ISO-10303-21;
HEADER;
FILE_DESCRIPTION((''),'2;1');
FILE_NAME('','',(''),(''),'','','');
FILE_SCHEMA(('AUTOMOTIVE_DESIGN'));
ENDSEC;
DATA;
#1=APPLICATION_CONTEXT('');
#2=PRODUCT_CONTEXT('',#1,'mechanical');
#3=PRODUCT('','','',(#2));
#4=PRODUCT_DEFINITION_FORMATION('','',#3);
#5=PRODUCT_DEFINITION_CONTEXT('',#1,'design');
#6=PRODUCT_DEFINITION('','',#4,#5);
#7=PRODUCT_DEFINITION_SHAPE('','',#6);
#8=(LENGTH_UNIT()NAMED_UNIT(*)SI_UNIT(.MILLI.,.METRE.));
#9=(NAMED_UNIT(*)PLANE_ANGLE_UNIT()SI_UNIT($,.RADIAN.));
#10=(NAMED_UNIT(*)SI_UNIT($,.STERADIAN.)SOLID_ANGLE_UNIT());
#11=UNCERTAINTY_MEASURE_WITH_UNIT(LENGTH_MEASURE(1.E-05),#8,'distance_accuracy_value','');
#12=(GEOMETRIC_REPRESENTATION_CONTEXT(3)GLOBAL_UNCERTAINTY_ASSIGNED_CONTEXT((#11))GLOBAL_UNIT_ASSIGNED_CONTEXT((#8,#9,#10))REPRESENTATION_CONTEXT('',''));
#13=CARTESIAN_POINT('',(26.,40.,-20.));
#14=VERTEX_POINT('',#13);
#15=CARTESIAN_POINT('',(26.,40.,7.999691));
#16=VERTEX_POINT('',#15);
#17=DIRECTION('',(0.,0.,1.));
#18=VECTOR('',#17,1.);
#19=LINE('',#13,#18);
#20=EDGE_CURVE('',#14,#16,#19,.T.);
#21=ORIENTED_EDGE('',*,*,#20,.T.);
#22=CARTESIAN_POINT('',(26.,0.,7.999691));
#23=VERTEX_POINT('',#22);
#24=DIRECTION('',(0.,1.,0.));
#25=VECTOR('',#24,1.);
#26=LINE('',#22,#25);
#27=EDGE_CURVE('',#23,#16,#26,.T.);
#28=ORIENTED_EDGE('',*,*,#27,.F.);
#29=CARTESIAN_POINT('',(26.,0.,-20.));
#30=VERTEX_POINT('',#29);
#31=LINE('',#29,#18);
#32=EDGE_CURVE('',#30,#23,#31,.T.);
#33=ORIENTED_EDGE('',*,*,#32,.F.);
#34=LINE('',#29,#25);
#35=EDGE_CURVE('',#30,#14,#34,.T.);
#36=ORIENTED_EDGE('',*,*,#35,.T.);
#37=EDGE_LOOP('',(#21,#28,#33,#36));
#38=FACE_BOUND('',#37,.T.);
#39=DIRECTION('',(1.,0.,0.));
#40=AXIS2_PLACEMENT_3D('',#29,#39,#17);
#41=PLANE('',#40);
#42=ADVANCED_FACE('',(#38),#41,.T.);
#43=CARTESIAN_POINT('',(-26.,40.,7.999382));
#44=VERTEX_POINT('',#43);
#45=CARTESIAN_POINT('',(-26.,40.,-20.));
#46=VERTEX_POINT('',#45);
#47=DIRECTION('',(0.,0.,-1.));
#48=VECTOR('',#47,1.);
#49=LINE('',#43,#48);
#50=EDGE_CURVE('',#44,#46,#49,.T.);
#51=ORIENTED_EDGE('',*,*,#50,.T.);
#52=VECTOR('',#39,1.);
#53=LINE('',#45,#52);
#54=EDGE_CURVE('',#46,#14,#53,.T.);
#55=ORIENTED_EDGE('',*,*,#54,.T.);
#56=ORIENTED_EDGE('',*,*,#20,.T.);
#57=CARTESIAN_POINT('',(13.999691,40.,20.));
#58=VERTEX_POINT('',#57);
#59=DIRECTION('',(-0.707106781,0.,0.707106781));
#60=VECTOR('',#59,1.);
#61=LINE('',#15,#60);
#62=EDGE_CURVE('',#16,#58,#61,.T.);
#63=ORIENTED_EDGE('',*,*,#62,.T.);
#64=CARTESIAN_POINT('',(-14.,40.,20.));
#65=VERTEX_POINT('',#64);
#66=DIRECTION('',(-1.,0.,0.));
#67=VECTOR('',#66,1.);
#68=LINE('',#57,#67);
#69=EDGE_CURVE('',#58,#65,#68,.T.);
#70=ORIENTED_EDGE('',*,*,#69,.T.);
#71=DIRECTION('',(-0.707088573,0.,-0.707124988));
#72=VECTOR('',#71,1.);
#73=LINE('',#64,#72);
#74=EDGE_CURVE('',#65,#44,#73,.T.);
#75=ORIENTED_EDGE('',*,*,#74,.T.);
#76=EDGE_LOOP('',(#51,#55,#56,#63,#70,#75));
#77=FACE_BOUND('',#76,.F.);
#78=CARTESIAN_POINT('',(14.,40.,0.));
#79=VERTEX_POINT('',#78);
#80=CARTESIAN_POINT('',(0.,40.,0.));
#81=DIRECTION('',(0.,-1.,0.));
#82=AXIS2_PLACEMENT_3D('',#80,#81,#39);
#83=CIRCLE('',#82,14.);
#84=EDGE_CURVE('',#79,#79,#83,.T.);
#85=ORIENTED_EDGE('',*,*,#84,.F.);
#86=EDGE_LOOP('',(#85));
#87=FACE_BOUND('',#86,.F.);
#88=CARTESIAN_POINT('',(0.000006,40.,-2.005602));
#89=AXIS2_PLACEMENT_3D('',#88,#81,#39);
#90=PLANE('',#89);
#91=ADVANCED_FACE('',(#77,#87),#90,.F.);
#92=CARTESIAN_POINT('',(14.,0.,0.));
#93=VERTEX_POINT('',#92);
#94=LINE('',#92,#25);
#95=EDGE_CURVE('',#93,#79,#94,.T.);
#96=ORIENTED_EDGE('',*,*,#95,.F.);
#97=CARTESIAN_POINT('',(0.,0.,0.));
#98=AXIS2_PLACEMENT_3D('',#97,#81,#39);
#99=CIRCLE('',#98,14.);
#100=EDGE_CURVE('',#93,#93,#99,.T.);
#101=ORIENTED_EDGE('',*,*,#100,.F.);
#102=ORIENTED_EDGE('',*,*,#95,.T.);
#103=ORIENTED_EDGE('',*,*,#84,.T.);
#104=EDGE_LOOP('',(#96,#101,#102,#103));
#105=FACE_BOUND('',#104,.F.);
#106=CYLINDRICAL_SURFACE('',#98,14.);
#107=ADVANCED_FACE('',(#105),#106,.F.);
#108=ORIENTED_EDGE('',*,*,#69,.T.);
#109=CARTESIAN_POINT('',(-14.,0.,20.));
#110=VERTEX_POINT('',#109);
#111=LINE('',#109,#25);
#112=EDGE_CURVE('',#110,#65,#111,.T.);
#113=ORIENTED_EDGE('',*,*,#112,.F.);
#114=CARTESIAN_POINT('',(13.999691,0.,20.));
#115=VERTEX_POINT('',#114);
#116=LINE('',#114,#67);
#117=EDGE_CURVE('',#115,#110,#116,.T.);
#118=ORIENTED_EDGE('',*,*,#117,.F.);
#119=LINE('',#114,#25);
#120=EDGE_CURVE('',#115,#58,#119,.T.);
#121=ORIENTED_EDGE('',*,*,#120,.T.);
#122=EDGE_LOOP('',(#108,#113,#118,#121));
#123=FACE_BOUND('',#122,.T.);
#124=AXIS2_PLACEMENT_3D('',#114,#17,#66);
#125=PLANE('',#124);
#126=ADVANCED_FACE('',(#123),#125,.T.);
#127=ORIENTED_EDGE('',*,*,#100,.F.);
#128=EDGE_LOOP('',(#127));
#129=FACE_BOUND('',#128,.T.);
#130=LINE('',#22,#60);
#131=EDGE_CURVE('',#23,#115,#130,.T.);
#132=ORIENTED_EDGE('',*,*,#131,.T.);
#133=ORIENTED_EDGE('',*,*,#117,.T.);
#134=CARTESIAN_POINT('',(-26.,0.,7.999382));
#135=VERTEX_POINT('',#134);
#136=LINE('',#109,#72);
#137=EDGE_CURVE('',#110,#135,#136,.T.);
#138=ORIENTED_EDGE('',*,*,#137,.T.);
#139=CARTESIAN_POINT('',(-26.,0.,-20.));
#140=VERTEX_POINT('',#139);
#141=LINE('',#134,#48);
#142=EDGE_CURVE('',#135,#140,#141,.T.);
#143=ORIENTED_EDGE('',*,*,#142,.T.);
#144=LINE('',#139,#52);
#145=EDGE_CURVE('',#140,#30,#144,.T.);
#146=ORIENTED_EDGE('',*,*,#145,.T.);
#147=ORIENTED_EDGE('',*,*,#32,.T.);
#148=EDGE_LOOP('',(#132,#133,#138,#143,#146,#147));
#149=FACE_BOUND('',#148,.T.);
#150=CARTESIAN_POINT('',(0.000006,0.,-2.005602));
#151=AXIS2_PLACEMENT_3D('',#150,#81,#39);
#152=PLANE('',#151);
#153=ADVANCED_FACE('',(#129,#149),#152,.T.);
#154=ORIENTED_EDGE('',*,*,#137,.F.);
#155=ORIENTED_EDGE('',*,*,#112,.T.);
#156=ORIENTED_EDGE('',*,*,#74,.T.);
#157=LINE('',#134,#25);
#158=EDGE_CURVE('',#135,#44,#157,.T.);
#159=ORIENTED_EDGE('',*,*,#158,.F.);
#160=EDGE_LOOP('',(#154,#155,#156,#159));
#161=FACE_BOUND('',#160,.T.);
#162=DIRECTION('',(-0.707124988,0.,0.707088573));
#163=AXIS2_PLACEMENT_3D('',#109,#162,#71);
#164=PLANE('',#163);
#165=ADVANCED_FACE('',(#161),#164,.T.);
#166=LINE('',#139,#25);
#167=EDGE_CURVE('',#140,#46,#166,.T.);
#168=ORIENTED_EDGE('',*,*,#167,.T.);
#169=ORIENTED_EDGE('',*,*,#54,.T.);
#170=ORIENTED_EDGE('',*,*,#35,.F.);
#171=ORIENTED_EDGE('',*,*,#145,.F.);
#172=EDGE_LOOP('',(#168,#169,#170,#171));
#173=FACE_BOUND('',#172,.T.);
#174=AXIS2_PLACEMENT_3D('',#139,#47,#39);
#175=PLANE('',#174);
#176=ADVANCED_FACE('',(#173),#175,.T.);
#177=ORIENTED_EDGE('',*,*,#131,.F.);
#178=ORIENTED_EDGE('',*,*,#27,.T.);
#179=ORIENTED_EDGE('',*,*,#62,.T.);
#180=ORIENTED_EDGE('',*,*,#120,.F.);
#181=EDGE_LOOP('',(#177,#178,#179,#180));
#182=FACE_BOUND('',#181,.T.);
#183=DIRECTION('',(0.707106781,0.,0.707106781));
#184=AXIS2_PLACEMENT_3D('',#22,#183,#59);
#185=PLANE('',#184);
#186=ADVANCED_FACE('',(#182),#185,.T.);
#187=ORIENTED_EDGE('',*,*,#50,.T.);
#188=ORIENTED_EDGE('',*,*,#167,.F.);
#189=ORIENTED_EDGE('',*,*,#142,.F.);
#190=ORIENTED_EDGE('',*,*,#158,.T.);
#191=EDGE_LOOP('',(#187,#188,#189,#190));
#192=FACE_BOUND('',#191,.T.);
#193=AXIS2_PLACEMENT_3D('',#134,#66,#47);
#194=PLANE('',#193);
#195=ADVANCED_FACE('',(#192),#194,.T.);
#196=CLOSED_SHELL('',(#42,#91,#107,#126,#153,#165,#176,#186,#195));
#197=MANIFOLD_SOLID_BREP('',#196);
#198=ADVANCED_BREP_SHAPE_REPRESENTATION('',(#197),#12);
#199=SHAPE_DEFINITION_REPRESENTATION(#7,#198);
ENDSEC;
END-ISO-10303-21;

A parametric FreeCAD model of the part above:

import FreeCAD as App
import Part
import Sketcher
from FreeCAD import Vector
Q = App.Units.Quantity


def add_polygon(sketch, points):
    """Adds a closed chain of lines whose ends are joined by coincident constraints."""
    first, n = sketch.GeometryCount, len(points)
    for a, b in zip(points, points[1:] + points[:1]):
        sketch.addGeometry(Part.LineSegment(App.Vector(*a, 0), App.Vector(*b, 0)), False)
    for i in range(n):
        sketch.addConstraint(Sketcher.Constraint("Coincident", first + i, 2, first + (i + 1) % n, 1))

doc = App.newDocument("Part")
body = doc.addObject("PartDesign::Body", "Body")

# Sketch on XZ plane
sketch1 = doc.addObject("Sketcher::SketchObject", "Sketch")
body.addObject(sketch1)
sketch1.AttachmentSupport = (doc.XZ_Plane, [""])
sketch1.MapMode = "FlatFace"
add_polygon(sketch1, [(14, 20), (-14, 20), (-26, 8), (-26, -20), (26, -20), (26, 8)])  # lines 0-5
sketch1.addGeometry(Part.Circle(Vector(0, 0, 0), Vector(0, 0, 1), 14), False)  # 6
sketch1.addConstraint([
    Sketcher.Constraint("Horizontal", 0),
    Sketcher.Constraint("Vertical", 2),
    Sketcher.Constraint("Horizontal", 3),
    Sketcher.Constraint("Vertical", 4),
    Sketcher.Constraint("Coincident", 6, 3, -1, 1),
    Sketcher.Constraint("Equal", 0, 4),
    Sketcher.Constraint("Equal", 1, 5),
    Sketcher.Constraint("Diameter", 6, 28.0),
    Sketcher.Constraint("DistanceX", 3, 1, 3, 2, 52.0),
    Sketcher.Constraint("Angle", 5, Q("135 deg")),
    Sketcher.Constraint("DistanceX", 0, 2, -1, 1, 14.0),
    Sketcher.Constraint("DistanceY", -1, 1, 0, 2, 20.0),
    Sketcher.Constraint("DistanceX", 1, 2, -1, 1, 26.0),
    Sketcher.Constraint("Distance", 1, 16.971),
])
pad1 = doc.addObject("PartDesign::Pad", "Pad")
body.addObject(pad1)
pad1.Profile = sketch1
pad1.Length = 40
pad1.Reversed = True

doc.recompute()
